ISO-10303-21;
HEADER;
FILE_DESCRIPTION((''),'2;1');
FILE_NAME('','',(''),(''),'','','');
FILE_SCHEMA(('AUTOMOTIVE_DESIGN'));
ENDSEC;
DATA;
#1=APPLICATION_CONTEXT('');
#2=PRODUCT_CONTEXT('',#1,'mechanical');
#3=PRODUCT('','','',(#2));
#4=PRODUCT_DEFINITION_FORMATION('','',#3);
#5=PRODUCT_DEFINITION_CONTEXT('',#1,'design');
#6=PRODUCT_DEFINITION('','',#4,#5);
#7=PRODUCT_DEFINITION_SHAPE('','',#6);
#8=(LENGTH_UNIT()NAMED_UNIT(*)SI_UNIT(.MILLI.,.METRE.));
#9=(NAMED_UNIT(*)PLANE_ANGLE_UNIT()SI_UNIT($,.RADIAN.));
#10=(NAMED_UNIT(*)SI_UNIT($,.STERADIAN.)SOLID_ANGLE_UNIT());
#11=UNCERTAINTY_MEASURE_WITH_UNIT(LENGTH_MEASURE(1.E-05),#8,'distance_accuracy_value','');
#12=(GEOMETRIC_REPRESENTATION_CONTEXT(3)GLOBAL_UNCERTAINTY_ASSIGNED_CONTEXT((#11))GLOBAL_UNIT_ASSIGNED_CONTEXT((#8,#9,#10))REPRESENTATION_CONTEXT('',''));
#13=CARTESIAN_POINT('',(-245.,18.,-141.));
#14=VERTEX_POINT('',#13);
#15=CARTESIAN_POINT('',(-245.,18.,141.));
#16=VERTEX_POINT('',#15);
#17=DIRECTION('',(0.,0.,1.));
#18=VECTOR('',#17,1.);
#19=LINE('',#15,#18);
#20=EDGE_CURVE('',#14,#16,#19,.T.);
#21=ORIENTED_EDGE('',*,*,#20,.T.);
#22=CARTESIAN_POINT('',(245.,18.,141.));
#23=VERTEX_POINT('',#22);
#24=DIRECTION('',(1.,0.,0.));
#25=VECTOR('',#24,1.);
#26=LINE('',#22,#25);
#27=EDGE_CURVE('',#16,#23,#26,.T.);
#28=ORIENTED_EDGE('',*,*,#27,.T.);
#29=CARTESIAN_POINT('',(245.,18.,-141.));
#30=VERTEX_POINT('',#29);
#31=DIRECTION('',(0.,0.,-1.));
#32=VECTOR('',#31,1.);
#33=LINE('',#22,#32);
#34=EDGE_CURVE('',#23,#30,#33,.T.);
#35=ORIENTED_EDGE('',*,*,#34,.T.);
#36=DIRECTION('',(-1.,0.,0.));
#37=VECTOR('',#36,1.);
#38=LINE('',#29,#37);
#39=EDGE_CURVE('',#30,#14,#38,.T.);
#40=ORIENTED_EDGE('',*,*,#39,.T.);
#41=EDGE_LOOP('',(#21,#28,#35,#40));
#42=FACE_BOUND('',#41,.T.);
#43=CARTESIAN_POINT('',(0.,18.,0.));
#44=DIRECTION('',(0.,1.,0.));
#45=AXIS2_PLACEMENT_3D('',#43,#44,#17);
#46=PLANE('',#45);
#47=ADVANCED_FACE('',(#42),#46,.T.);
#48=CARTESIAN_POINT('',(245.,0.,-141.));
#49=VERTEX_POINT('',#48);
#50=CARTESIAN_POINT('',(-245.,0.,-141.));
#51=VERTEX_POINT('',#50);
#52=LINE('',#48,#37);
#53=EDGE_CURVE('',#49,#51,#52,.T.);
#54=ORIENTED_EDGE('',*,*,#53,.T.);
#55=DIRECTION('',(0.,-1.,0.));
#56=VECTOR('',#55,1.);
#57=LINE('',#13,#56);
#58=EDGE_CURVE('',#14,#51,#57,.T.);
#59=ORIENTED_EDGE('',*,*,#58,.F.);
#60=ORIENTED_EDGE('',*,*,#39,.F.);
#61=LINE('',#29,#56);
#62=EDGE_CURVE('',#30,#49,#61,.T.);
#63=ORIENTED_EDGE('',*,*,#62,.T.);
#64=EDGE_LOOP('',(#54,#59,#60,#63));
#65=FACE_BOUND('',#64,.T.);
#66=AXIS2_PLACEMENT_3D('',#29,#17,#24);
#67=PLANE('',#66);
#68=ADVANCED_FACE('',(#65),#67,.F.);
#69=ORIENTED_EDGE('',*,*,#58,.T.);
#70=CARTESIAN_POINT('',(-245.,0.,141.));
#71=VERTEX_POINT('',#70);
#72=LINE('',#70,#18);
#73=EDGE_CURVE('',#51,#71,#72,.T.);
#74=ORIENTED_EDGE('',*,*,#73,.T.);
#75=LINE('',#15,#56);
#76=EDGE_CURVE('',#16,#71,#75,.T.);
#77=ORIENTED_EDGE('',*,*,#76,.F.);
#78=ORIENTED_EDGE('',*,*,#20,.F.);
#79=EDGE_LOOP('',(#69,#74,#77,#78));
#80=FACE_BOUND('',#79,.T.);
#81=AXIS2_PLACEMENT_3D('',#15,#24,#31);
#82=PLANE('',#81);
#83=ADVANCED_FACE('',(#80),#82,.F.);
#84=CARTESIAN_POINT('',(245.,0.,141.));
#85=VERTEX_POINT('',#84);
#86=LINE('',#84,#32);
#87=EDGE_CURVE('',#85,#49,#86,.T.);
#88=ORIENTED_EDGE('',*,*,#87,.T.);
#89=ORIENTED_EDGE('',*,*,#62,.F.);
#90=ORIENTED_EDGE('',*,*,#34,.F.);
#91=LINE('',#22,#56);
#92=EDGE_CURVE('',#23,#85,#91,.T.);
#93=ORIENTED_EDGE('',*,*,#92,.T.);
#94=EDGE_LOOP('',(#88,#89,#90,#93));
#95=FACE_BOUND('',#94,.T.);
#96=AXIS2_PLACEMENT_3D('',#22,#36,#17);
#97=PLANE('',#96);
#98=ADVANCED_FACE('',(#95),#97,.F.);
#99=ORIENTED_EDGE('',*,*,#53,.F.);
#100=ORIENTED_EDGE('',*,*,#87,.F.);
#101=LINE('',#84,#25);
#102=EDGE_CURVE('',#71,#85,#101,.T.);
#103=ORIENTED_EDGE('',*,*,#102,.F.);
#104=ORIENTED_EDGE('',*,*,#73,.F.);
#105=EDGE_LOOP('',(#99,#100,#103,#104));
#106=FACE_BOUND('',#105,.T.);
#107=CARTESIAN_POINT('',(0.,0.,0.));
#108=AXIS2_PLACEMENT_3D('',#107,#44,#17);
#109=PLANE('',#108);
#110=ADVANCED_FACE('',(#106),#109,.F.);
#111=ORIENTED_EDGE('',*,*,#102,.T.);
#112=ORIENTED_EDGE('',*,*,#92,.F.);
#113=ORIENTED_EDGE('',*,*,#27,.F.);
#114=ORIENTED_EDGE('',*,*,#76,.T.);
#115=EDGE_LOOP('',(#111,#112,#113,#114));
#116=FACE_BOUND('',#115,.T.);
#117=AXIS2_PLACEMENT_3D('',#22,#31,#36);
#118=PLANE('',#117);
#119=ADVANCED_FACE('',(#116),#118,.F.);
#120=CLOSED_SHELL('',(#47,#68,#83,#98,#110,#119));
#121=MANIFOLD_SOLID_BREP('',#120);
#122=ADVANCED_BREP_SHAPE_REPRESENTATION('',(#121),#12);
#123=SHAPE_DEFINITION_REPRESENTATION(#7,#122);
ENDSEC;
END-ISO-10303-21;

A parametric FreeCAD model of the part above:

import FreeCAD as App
import Part
import Sketcher

V = App.Vector


def add_polygon(sketch, points):
    """Adds a closed chain of lines whose ends are joined by coincident constraints."""
    first, n = sketch.GeometryCount, len(points)
    for a, b in zip(points, points[1:] + points[:1]):
        sketch.addGeometry(Part.LineSegment(App.Vector(*a, 0), App.Vector(*b, 0)), False)
    for i in range(n):
        sketch.addConstraint(Sketcher.Constraint("Coincident", first + i, 2, first + (i + 1) % n, 1))

doc = App.newDocument("Part")
body = doc.addObject("PartDesign::Body", "Body")

sketch1 = body.newObject("Sketcher::SketchObject", "Sketch")
sketch1.AttachmentSupport = (doc.getObject("XZ_Plane"), [""])
sketch1.MapMode = "FlatFace"
add_polygon(sketch1, [(-245, -141), (-245, 141), (245, 141), (245, -141)])
sketch1.addConstraint([
    Sketcher.Constraint("Vertical", 0),
    Sketcher.Constraint("Horizontal", 1),
    Sketcher.Constraint("Vertical", 2),
    Sketcher.Constraint("Horizontal", 3),
    Sketcher.Constraint("Symmetric", 0, 2, 2, 2, -1, 1),
    Sketcher.Constraint("DistanceX", 1, 1, 1, 2, 490.0),
    Sketcher.Constraint("DistanceY", 0, 1, 0, 2, 282.0),
])
pad1 = body.newObject("PartDesign::Pad", "Pad")
pad1.Profile = sketch1
pad1.Length = 18
pad1.Reversed = True

doc.recompute()
